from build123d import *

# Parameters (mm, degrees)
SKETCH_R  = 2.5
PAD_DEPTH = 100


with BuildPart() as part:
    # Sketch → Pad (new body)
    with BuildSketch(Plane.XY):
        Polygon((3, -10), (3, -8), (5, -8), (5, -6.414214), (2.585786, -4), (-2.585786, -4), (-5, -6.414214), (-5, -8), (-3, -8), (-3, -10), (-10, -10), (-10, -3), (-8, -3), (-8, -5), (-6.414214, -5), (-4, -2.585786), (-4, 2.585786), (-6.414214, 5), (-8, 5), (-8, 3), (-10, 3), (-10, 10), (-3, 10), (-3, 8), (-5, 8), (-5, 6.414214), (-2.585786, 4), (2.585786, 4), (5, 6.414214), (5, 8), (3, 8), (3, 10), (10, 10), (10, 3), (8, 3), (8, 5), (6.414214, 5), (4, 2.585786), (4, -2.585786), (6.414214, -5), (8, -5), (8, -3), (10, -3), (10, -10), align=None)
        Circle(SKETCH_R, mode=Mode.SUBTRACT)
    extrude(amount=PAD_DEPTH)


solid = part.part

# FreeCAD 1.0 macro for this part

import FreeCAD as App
import Part
import Sketcher
from FreeCAD import Vector

doc = App.newDocument("Part")
body = doc.addObject("PartDesign::Body", "Body")

# Sketch on XY plane
sketch1 = doc.addObject("Sketcher::SketchObject", "Sketch")
body.addObject(sketch1)
sketch1.AttachmentSupport = (doc.XY_Plane, [""])
sketch1.MapMode = "FlatFace"
sketch1.addGeometry(Part.LineSegment(Vector(3, -8, 0), Vector(3, -10, 0)), False)
sketch1.addGeometry(Part.LineSegment(Vector(3, -10, 0), Vector(10, -10, 0)), False)
sketch1.addGeometry(Part.LineSegment(Vector(10, -10, 0), Vector(10, -3, 0)), False)
sketch1.addGeometry(Part.LineSegment(Vector(10, -3, 0), Vector(8, -3, 0)), False)
sketch1.addGeometry(Part.LineSegment(Vector(8, -3, 0), Vector(8, -5, 0)), False)
sketch1.addGeometry(Part.LineSegment(Vector(8, -5, 0), Vector(6.414214, -5, 0)), False)
sketch1.addGeometry(Part.LineSegment(Vector(6.414214, -5, 0), Vector(4, -2.585786, 0)), False)
sketch1.addGeometry(Part.LineSegment(Vector(4, -2.585786, 0), Vector(4, 2.585786, 0)), False)
sketch1.addGeometry(Part.LineSegment(Vector(4, 2.585786, 0), Vector(6.414214, 5, 0)), False)
sketch1.addGeometry(Part.LineSegment(Vector(6.414214, 5, 0), Vector(8, 5, 0)), False)
sketch1.addGeometry(Part.LineSegment(Vector(8, 5, 0), Vector(8, 3, 0)), False)
sketch1.addGeometry(Part.LineSegment(Vector(8, 3, 0), Vector(10, 3, 0)), False)
sketch1.addGeometry(Part.LineSegment(Vector(10, 3, 0), Vector(10, 10, 0)), False)
sketch1.addGeometry(Part.LineSegment(Vector(10, 10, 0), Vector(3, 10, 0)), False)
sketch1.addGeometry(Part.LineSegment(Vector(3, 10, 0), Vector(3, 8, 0)), False)
sketch1.addGeometry(Part.LineSegment(Vector(3, 8, 0), Vector(5, 8, 0)), False)
sketch1.addGeometry(Part.LineSegment(Vector(5, 8, 0), Vector(5, 6.414214, 0)), False)
sketch1.addGeometry(Part.LineSegment(Vector(5, 6.414214, 0), Vector(2.585786, 4, 0)), False)
sketch1.addGeometry(Part.LineSegment(Vector(2.585786, 4, 0), Vector(-2.585786, 4, 0)), False)
sketch1.addGeometry(Part.LineSegment(Vector(-2.585786, 4, 0), Vector(-5, 6.414214, 0)), False)
sketch1.addGeometry(Part.LineSegment(Vector(-5, 6.414214, 0), Vector(-5, 8, 0)), False)
sketch1.addGeometry(Part.LineSegment(Vector(-5, 8, 0), Vector(-3, 8, 0)), False)
sketch1.addGeometry(Part.LineSegment(Vector(-3, 8, 0), Vector(-3, 10, 0)), False)
sketch1.addGeometry(Part.LineSegment(Vector(-3, 10, 0), Vector(-10, 10, 0)), False)
sketch1.addGeometry(Part.LineSegment(Vector(-10, 10, 0), Vector(-10, 3, 0)), False)
sketch1.addGeometry(Part.LineSegment(Vector(-10, 3, 0), Vector(-8, 3, 0)), False)
sketch1.addGeometry(Part.LineSegment(Vector(-8, 3, 0), Vector(-8, 5, 0)), False)
sketch1.addGeometry(Part.LineSegment(Vector(-8, 5, 0), Vector(-6.414214, 5, 0)), False)
sketch1.addGeometry(Part.LineSegment(Vector(-6.414214, 5, 0), Vector(-4, 2.585786, 0)), False)
sketch1.addGeometry(Part.LineSegment(Vector(-4, 2.585786, 0), Vector(-4, -2.585786, 0)), False)
sketch1.addGeometry(Part.LineSegment(Vector(-4, -2.585786, 0), Vector(-6.414214, -5, 0)), False)
sketch1.addGeometry(Part.LineSegment(Vector(-6.414214, -5, 0), Vector(-8, -5, 0)), False)
sketch1.addGeometry(Part.LineSegment(Vector(-8, -5, 0), Vector(-8, -3, 0)), False)
sketch1.addGeometry(Part.LineSegment(Vector(-8, -3, 0), Vector(-10, -3, 0)), False)
sketch1.addGeometry(Part.LineSegment(Vector(-10, -3, 0), Vector(-10, -10, 0)), False)
sketch1.addGeometry(Part.LineSegment(Vector(-10, -10, 0), Vector(-3, -10, 0)), False)
sketch1.addGeometry(Part.LineSegment(Vector(-3, -10, 0), Vector(-3, -8, 0)), False)
sketch1.addGeometry(Part.LineSegment(Vector(-3, -8, 0), Vector(-5, -8, 0)), False)
sketch1.addGeometry(Part.LineSegment(Vector(-5, -8, 0), Vector(-5, -6.414214, 0)), False)
sketch1.addGeometry(Part.LineSegment(Vector(-5, -6.414214, 0), Vector(-2.585786, -4, 0)), False)
sketch1.addGeometry(Part.LineSegment(Vector(-2.585786, -4, 0), Vector(2.585786, -4, 0)), False)
sketch1.addGeometry(Part.LineSegment(Vector(2.585786, -4, 0), Vector(5, -6.414214, 0)), False)
sketch1.addGeometry(Part.LineSegment(Vector(5, -6.414214, 0), Vector(5, -8, 0)), False)
sketch1.addGeometry(Part.LineSegment(Vector(5, -8, 0), Vector(3, -8, 0)), False)
sketch1.addGeometry(Part.Circle(Vector(0, 0, 0), Vector(0, 0, 1), 2.5), False)
sketch1.addConstraint(Sketcher.Constraint("Coincident", 0, 2, 1, 1))
sketch1.addConstraint(Sketcher.Constraint("Coincident", 1, 2, 2, 1))
sketch1.addConstraint(Sketcher.Constraint("Coincident", 2, 2, 3, 1))
sketch1.addConstraint(Sketcher.Constraint("Coincident", 3, 2, 4, 1))
sketch1.addConstraint(Sketcher.Constraint("Coincident", 4, 2, 5, 1))
sketch1.addConstraint(Sketcher.Constraint("Coincident", 5, 2, 6, 1))
sketch1.addConstraint(Sketcher.Constraint("Coincident", 6, 2, 7, 1))
sketch1.addConstraint(Sketcher.Constraint("Coincident", 7, 2, 8, 1))
sketch1.addConstraint(Sketcher.Constraint("Coincident", 8, 2, 9, 1))
sketch1.addConstraint(Sketcher.Constraint("Coincident", 9, 2, 10, 1))
sketch1.addConstraint(Sketcher.Constraint("Coincident", 10, 2, 11, 1))
sketch1.addConstraint(Sketcher.Constraint("Coincident", 11, 2, 12, 1))
sketch1.addConstraint(Sketcher.Constraint("Coincident", 12, 2, 13, 1))
sketch1.addConstraint(Sketcher.Constraint("Coincident", 13, 2, 14, 1))
sketch1.addConstraint(Sketcher.Constraint("Coincident", 14, 2, 15, 1))
sketch1.addConstraint(Sketcher.Constraint("Coincident", 15, 2, 16, 1))
sketch1.addConstraint(Sketcher.Constraint("Coincident", 16, 2, 17, 1))
sketch1.addConstraint(Sketcher.Constraint("Coincident", 17, 2, 18, 1))
sketch1.addConstraint(Sketcher.Constraint("Coincident", 18, 2, 19, 1))
sketch1.addConstraint(Sketcher.Constraint("Coincident", 19, 2, 20, 1))
sketch1.addConstraint(Sketcher.Constraint("Coincident", 20, 2, 21, 1))
sketch1.addConstraint(Sketcher.Constraint("Coincident", 21, 2, 22, 1))
sketch1.addConstraint(Sketcher.Constraint("Coincident", 22, 2, 23, 1))
sketch1.addConstraint(Sketcher.Constraint("Coincident", 23, 2, 24, 1))
sketch1.addConstraint(Sketcher.Constraint("Coincident", 24, 2, 25, 1))
sketch1.addConstraint(Sketcher.Constraint("Coincident", 25, 2, 26, 1))
sketch1.addConstraint(Sketcher.Constraint("Coincident", 26, 2, 27, 1))
sketch1.addConstraint(Sketcher.Constraint("Coincident", 27, 2, 28, 1))
sketch1.addConstraint(Sketcher.Constraint("Coincident", 28, 2, 29, 1))
sketch1.addConstraint(Sketcher.Constraint("Coincident", 29, 2, 30, 1))
sketch1.addConstraint(Sketcher.Constraint("Coincident", 30, 2, 31, 1))
sketch1.addConstraint(Sketcher.Constraint("Coincident", 31, 2, 32, 1))
sketch1.addConstraint(Sketcher.Constraint("Coincident", 32, 2, 33, 1))
sketch1.addConstraint(Sketcher.Constraint("Coincident", 33, 2, 34, 1))
sketch1.addConstraint(Sketcher.Constraint("Coincident", 34, 2, 35, 1))
sketch1.addConstraint(Sketcher.Constraint("Coincident", 35, 2, 36, 1))
sketch1.addConstraint(Sketcher.Constraint("Coincident", 36, 2, 37, 1))
sketch1.addConstraint(Sketcher.Constraint("Coincident", 37, 2, 38, 1))
sketch1.addConstraint(Sketcher.Constraint("Coincident", 38, 2, 39, 1))
sketch1.addConstraint(Sketcher.Constraint("Coincident", 39, 2, 40, 1))
sketch1.addConstraint(Sketcher.Constraint("Coincident", 40, 2, 41, 1))
sketch1.addConstraint(Sketcher.Constraint("Coincident", 41, 2, 42, 1))
sketch1.addConstraint(Sketcher.Constraint("Coincident", 42, 2, 43, 1))
sketch1.addConstraint(Sketcher.Constraint("Coincident", 43, 2, 0, 1))
sketch1.addConstraint(Sketcher.Constraint("Vertical", 0))
sketch1.addConstraint(Sketcher.Constraint("Horizontal", 1))
sketch1.addConstraint(Sketcher.Constraint("Vertical", 2))
sketch1.addConstraint(Sketcher.Constraint("Horizontal", 3))
sketch1.addConstraint(Sketcher.Constraint("Vertical", 4))
sketch1.addConstraint(Sketcher.Constraint("Horizontal", 5))
sketch1.addConstraint(Sketcher.Constraint("Vertical", 7))
sketch1.addConstraint(Sketcher.Constraint("Horizontal", 9))
sketch1.addConstraint(Sketcher.Constraint("Vertical", 10))
sketch1.addConstraint(Sketcher.Constraint("Horizontal", 11))
sketch1.addConstraint(Sketcher.Constraint("Vertical", 12))
sketch1.addConstraint(Sketcher.Constraint("Horizontal", 13))
sketch1.addConstraint(Sketcher.Constraint("Vertical", 14))
sketch1.addConstraint(Sketcher.Constraint("Horizontal", 15))
sketch1.addConstraint(Sketcher.Constraint("Vertical", 16))
sketch1.addConstraint(Sketcher.Constraint("Horizontal", 18))
sketch1.addConstraint(Sketcher.Constraint("Vertical", 20))
sketch1.addConstraint(Sketcher.Constraint("Horizontal", 21))
sketch1.addConstraint(Sketcher.Constraint("Vertical", 22))
sketch1.addConstraint(Sketcher.Constraint("Horizontal", 23))
sketch1.addConstraint(Sketcher.Constraint("Vertical", 24))
sketch1.addConstraint(Sketcher.Constraint("Horizontal", 25))
sketch1.addConstraint(Sketcher.Constraint("Vertical", 26))
sketch1.addConstraint(Sketcher.Constraint("Horizontal", 27))
sketch1.addConstraint(Sketcher.Constraint("Vertical", 29))
sketch1.addConstraint(Sketcher.Constraint("Horizontal", 31))
sketch1.addConstraint(Sketcher.Constraint("Vertical", 32))
sketch1.addConstraint(Sketcher.Constraint("Horizontal", 33))
sketch1.addConstraint(Sketcher.Constraint("Vertical", 34))
sketch1.addConstraint(Sketcher.Constraint("Horizontal", 35))
sketch1.addConstraint(Sketcher.Constraint("Vertical", 36))
sketch1.addConstraint(Sketcher.Constraint("Horizontal", 37))
sketch1.addConstraint(Sketcher.Constraint("Vertical", 38))
sketch1.addConstraint(Sketcher.Constraint("Horizontal", 40))
sketch1.addConstraint(Sketcher.Constraint("Vertical", 42))
sketch1.addConstraint(Sketcher.Constraint("Horizontal", 43))
sketch1.addConstraint(Sketcher.Constraint("Coincident", 44, 3, -1, 1))
sketch1.addConstraint(Sketcher.Constraint("Symmetric", 0, 2, 22, 2, -1, 1))
sketch1.addConstraint(Sketcher.Constraint("Symmetric", 2, 2, 24, 2, -1, 1))
sketch1.addConstraint(Sketcher.Constraint("Symmetric", 4, 2, 26, 2, -1, 1))
sketch1.addConstraint(Sketcher.Constraint("Symmetric", 6, 2, 28, 2, -1, 1))
sketch1.addConstraint(Sketcher.Constraint("Symmetric", 8, 2, 30, 2, -1, 1))
sketch1.addConstraint(Sketcher.Constraint("Symmetric", 10, 2, 32, 2, -1, 1))
sketch1.addConstraint(Sketcher.Constraint("Symmetric", 12, 2, 34, 2, -1, 1))
sketch1.addConstraint(Sketcher.Constraint("Symmetric", 14, 2, 36, 2, -1, 1))
sketch1.addConstraint(Sketcher.Constraint("Symmetric", 16, 2, 38, 2, -1, 1))
sketch1.addConstraint(Sketcher.Constraint("Symmetric", 17, 2, 39, 2, -1, 1))
sketch1.addConstraint(Sketcher.Constraint("Symmetric", 19, 2, 41, 2, -1, 1))
sketch1.addConstraint(Sketcher.Constraint("Symmetric", 16, 2, 19, 2, -2))
sketch1.addConstraint(Sketcher.Constraint("Symmetric", 14, 2, 21, 2, -2))
sketch1.addConstraint(Sketcher.Constraint("Symmetric", 12, 2, 23, 2, -2))
sketch1.addConstraint(Sketcher.Constraint("Symmetric", 10, 2, 25, 2, -2))
sketch1.addConstraint(Sketcher.Constraint("Symmetric", 8, 2, 27, 2, -2))
sketch1.addConstraint(Sketcher.Constraint("Perpendicular", 6, 8))
sketch1.addConstraint(Sketcher.Constraint("Parallel", 8, 17))
sketch1.addConstraint(Sketcher.Constraint("Perpendicular", 17, 19))
sketch1.addConstraint(Sketcher.Constraint("Parallel", 19, 28))
sketch1.addConstraint(Sketcher.Constraint("Perpendicular", 28, 30))
sketch1.addConstraint(Sketcher.Constraint("Perpendicular", 39, 41))
sketch1.addConstraint(Sketcher.Constraint("Horizontal", 7, 2, 28, 2))
sketch1.addConstraint(Sketcher.Constraint("Horizontal", 37, 2, 42, 2))
sketch1.addConstraint(Sketcher.Constraint("Equal", 11, 15))
sketch1.addConstraint(Sketcher.Constraint("Equal", 43, 0))
sketch1.addConstraint(Sketcher.Constraint("Equal", 35, 2))
sketch1.addConstraint(Sketcher.Constraint("Equal", 0, 4))
sketch1.addConstraint(Sketcher.Constraint("Equal", 40, 7))
sketch1.addConstraint(Sketcher.Constraint("Equal", 31, 16))
sketch1.addConstraint(Sketcher.Constraint("Equal", 8, 17))
sketch1.addConstraint(Sketcher.Constraint("Diameter", 44, 5.0))
sketch1.addConstraint(Sketcher.Constraint("DistanceX", 1, 1, 1, 2, 7.0))
sketch1.addConstraint(Sketcher.Constraint("DistanceX", 3, 2, 3, 1, 2.0))
sketch1.addConstraint(Sketcher.Constraint("DistanceX", -1, 1, 0, 2, 3.0))
sketch1.addConstraint(Sketcher.Constraint("DistanceX", -1, 1, 6, 2, 4.0))
sketch1.addConstraint(Sketcher.Constraint("DistanceX", 5, 2, 5, 1, 1.585786))
pad1 = doc.addObject("PartDesign::Pad", "Pad")
body.addObject(pad1)
pad1.Profile = sketch1
pad1.Length = 100

doc.recompute()
